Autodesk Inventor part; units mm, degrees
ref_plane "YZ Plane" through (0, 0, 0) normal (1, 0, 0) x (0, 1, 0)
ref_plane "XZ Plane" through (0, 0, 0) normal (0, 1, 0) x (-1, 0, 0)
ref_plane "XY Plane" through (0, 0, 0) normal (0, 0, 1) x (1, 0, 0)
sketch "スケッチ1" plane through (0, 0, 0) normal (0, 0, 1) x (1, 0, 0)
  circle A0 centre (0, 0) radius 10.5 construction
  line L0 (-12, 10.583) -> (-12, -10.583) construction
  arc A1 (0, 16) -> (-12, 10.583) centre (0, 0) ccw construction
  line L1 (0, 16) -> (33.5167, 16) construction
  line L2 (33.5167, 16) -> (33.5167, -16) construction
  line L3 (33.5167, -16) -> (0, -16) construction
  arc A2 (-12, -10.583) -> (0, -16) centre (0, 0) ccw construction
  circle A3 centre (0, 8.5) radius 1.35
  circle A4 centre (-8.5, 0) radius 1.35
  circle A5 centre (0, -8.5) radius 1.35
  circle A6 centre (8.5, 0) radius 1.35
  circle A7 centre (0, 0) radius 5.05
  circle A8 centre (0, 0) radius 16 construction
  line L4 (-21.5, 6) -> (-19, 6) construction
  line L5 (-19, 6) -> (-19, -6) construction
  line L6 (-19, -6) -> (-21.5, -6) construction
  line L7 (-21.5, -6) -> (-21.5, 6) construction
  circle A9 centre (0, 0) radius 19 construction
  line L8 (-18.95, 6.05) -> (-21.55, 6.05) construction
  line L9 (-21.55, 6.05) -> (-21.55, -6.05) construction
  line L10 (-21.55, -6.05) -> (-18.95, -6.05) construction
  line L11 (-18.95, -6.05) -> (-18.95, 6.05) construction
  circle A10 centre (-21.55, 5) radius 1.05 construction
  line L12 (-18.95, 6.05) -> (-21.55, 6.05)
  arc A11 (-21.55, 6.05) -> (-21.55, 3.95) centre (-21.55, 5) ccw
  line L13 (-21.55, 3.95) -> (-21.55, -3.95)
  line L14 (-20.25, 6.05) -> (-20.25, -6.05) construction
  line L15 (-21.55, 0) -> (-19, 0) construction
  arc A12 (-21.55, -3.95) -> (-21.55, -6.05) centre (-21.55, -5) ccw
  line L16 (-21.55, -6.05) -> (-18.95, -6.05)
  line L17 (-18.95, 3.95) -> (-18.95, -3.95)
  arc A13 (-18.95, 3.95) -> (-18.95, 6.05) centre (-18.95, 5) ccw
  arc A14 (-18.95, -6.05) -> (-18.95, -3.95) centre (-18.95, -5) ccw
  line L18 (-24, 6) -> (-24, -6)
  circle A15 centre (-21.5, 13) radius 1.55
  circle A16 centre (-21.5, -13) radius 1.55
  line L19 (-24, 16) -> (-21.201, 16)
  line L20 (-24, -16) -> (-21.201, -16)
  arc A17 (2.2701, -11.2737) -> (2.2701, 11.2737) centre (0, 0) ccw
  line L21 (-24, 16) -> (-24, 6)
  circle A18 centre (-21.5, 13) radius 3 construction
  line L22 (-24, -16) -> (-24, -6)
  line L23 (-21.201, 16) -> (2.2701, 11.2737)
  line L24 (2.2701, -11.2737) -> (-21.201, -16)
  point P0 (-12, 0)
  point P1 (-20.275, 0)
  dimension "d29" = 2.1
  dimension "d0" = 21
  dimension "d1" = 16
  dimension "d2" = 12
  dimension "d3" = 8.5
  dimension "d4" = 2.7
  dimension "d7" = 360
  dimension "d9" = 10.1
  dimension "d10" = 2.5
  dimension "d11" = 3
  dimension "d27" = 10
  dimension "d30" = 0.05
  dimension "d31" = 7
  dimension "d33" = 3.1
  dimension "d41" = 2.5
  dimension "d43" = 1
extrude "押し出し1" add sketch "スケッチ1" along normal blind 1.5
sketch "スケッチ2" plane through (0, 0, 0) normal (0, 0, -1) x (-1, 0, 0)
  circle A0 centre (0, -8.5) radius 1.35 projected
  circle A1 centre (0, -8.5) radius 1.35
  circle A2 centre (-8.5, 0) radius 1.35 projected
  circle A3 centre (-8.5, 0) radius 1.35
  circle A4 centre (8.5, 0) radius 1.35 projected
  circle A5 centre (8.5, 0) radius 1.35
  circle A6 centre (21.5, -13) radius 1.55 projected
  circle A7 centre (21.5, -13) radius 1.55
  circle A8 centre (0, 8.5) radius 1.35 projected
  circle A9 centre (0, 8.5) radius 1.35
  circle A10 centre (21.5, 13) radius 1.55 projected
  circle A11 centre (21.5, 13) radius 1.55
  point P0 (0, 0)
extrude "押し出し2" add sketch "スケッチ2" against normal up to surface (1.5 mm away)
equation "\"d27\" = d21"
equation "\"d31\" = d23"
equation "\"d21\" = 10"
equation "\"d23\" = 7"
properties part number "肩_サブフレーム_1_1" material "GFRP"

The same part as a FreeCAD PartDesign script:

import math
import FreeCAD as App
import Part
import Sketcher

V = App.Vector

doc = App.newDocument("Part")
body = doc.addObject("PartDesign::Body", "Body")

sketch1 = doc.addObject("Sketcher::SketchObject", "Sketch")
body.addObject(sketch1)
sketch1.AttachmentSupport = (doc.XY_Plane, [""])
sketch1.MapMode = "FlatFace"
sketch1.addGeometry([
    Part.LineSegment(V(-24, 16, 0), V(-24, -16, 0)),
    Part.LineSegment(V(-24, -16, 0), V(-21.2, -16, 0)),
    Part.LineSegment(V(-21.2, -16, 0), V(2.3, -11.3, 0)),
    Part.ArcOfCircle(Part.Circle(V(0, 0, 0), V(0, 0, 1), 11.5), math.radians(-79), math.radians(79)),
    Part.LineSegment(V(2.3, 11.3, 0), V(-21.2, 16, 0)),
    Part.LineSegment(V(-21.2, 16, 0), V(-24, 16, 0)),
    Part.Circle(V(-21.5, -13, 0), V(0, 0, 1), 1.6),
    Part.Circle(V(0, -8.5, 0), V(0, 0, 1), 1.4),
    Part.LineSegment(V(-21.6, 6, 0), V(-18.9, 6, 0)),
    Part.ArcOfCircle(Part.Circle(V(-18.9, 5, 0), V(0, 0, 1), 1), math.radians(-90), math.radians(90)),
    Part.LineSegment(V(-18.9, 4, 0), V(-18.9, -4, 0)),
    Part.ArcOfCircle(Part.Circle(V(-18.9, -5, 0), V(0, 0, 1), 1), math.radians(-90), math.radians(90)),
    Part.LineSegment(V(-18.9, -6, 0), V(-21.6, -6, 0)),
    Part.ArcOfCircle(Part.Circle(V(-21.6, -5, 0), V(0, 0, 1), 1), math.radians(90), math.radians(270)),
    Part.LineSegment(V(-21.6, -4, 0), V(-21.6, 4, 0)),
    Part.ArcOfCircle(Part.Circle(V(-21.6, 5, 0), V(0, 0, 1), 1.1), math.radians(90), math.radians(270)),
    Part.Circle(V(-8.5, 0, 0), V(0, 0, 1), 1.4),
    Part.Circle(V(-21.5, 13, 0), V(0, 0, 1), 1.6),
    Part.Circle(V(0, 0, 0), V(0, 0, 1), 5),
    Part.Circle(V(8.5, 0, 0), V(0, 0, 1), 1.4),
    Part.Circle(V(0, 8.5, 0), V(0, 0, 1), 1.4),
], False)
sketch1.addConstraint([
    Sketcher.Constraint("Coincident", 0, 2, 1, 1),
    Sketcher.Constraint("Coincident", 1, 2, 2, 1),
    Sketcher.Constraint("Tangent", 2, 2, 3, 1),
    Sketcher.Constraint("Tangent", 3, 2, 4, 1),
    Sketcher.Constraint("Coincident", 4, 2, 5, 1),
    Sketcher.Constraint("Coincident", 5, 2, 0, 1),
    Sketcher.Constraint("Tangent", 8, 2, 9, 2),
    Sketcher.Constraint("Coincident", 9, 1, 10, 1),
    Sketcher.Constraint("Coincident", 10, 2, 11, 2),
    Sketcher.Constraint("Tangent", 11, 1, 12, 1),
    Sketcher.Constraint("Tangent", 12, 2, 13, 2),
    Sketcher.Constraint("Coincident", 13, 1, 14, 1),
    Sketcher.Constraint("Coincident", 14, 2, 15, 2),
    Sketcher.Constraint("Tangent", 15, 1, 8, 1),
    Sketcher.Constraint("Vertical", 0),
    Sketcher.Constraint("Horizontal", 1),
    Sketcher.Constraint("Horizontal", 5),
    Sketcher.Constraint("Horizontal", 8),
    Sketcher.Constraint("Vertical", 10),
    Sketcher.Constraint("Horizontal", 12),
    Sketcher.Constraint("Vertical", 14),
    Sketcher.Constraint("Coincident", 3, 3, -1, 1),
    Sketcher.Constraint("Coincident", 18, 3, -1, 1),
    Sketcher.Constraint("Equal", 9, 11),
    Sketcher.Constraint("Equal", 11, 13),
    Sketcher.Constraint("Equal", 13, 15),
    Sketcher.Constraint("Equal", 7, 16),
    Sketcher.Constraint("Equal", 6, 17),
    Sketcher.Constraint("Equal", 16, 19),
    Sketcher.Constraint("Equal", 19, 20),
    Sketcher.Constraint("Symmetric", 16, 3, 19, 3, -1, 1),
    Sketcher.Constraint("Symmetric", 7, 3, 20, 3, -1, 1),
    Sketcher.Constraint("Symmetric", 9, 3, 11, 3, -1),
    Sketcher.Constraint("Symmetric", 6, 3, 17, 3, -1),
    Sketcher.Constraint("Symmetric", 1, 2, 4, 2, -1),
    Sketcher.Constraint("PointOnObject", 7, 3, -2),
    Sketcher.Constraint("PointOnObject", 16, 3, -1),
    Sketcher.Constraint("Vertical", 13, 3, 15, 3),
    Sketcher.Constraint("Vertical", 8, 2, 9, 1),
    Sketcher.Constraint("Vertical", 12, 2, 13, 1),
    Sketcher.Constraint("Diameter", 6, 3.1),
    Sketcher.Constraint("Diameter", 7, 2.7),
    Sketcher.Constraint("Diameter", 18, 10.1),
    Sketcher.Constraint("Radius", 9, 1.05),
    Sketcher.Constraint("DistanceY", 0, 2, -1, 1, 16.0),
    Sketcher.Constraint("DistanceY", 11, 3, 9, 3, 10.0),
    Sketcher.Constraint("DistanceY", 0, 2, 6, 3, 3.0),
    Sketcher.Constraint("DistanceY", 7, 3, -1, 1, 8.5),
    Sketcher.Constraint("DistanceX", 16, 3, -1, 1, 8.5),
    Sketcher.Constraint("Radius", 3, 11.5),
    Sketcher.Constraint("DistanceX", 0, 2, 6, 3, 2.5),
    Sketcher.Constraint("DistanceX", 13, 3, 6, 3, 0.05),
    Sketcher.Constraint("DistanceX", 8, 1, 8, 2, 2.6),
    Sketcher.Constraint("DistanceX", 0, 2, -1, 1, 24.0),
    Sketcher.Constraint("DistanceX", 1, 1, 1, 2, 2.799),
])
pad1 = doc.addObject("PartDesign::Pad", "Pad")
body.addObject(pad1)
pad1.Profile = sketch1
pad1.Length = 1.5

sketch2 = doc.addObject("Sketcher::SketchObject", "Sketch001")
body.addObject(sketch2)
sketch2.AttachmentSupport = (doc.XY_Plane, [""])
sketch2.MapMode = "FlatFace"
sketch2.addGeometry([
    Part.Circle(V(0, -8.5, 0), V(0, 0, 1), 1.4),
    Part.Circle(V(8.5, 0, 0), V(0, 0, 1), 1.4),
    Part.Circle(V(-8.5, 0, 0), V(0, 0, 1), 1.4),
    Part.Circle(V(-21.5, -13, 0), V(0, 0, 1), 1.6),
    Part.Circle(V(0, 8.5, 0), V(0, 0, 1), 1.4),
    Part.Circle(V(-21.5, 13, 0), V(0, 0, 1), 1.6),
], False)
sketch2.addConstraint([
    Sketcher.Constraint("Equal", 0, 1),
    Sketcher.Constraint("Equal", 1, 2),
    Sketcher.Constraint("Equal", 2, 4),
    Sketcher.Constraint("Equal", 3, 5),
    Sketcher.Constraint("Symmetric", 1, 3, 2, 3, -1, 1),
    Sketcher.Constraint("Symmetric", 0, 3, 4, 3, -1, 1),
    Sketcher.Constraint("Symmetric", 3, 3, 5, 3, -1),
    Sketcher.Constraint("PointOnObject", 0, 3, -2),
    Sketcher.Constraint("PointOnObject", 1, 3, -1),
    Sketcher.Constraint("Diameter", 0, 2.7),
    Sketcher.Constraint("Diameter", 3, 3.1),
    Sketcher.Constraint("DistanceY", 3, 3, -1, 1, 13.0),
    Sketcher.Constraint("DistanceX", 2, 3, 1, 3, 17.0),
    Sketcher.Constraint("DistanceX", 3, 3, 2, 3, 13.0),
    Sketcher.Constraint("DistanceY", 0, 3, 4, 3, 17.0),
])
pad2 = doc.addObject("PartDesign::Pad", "Pad001")
body.addObject(pad2)
pad2.Profile = sketch2
pad2.Length = 1.5

doc.recompute()
